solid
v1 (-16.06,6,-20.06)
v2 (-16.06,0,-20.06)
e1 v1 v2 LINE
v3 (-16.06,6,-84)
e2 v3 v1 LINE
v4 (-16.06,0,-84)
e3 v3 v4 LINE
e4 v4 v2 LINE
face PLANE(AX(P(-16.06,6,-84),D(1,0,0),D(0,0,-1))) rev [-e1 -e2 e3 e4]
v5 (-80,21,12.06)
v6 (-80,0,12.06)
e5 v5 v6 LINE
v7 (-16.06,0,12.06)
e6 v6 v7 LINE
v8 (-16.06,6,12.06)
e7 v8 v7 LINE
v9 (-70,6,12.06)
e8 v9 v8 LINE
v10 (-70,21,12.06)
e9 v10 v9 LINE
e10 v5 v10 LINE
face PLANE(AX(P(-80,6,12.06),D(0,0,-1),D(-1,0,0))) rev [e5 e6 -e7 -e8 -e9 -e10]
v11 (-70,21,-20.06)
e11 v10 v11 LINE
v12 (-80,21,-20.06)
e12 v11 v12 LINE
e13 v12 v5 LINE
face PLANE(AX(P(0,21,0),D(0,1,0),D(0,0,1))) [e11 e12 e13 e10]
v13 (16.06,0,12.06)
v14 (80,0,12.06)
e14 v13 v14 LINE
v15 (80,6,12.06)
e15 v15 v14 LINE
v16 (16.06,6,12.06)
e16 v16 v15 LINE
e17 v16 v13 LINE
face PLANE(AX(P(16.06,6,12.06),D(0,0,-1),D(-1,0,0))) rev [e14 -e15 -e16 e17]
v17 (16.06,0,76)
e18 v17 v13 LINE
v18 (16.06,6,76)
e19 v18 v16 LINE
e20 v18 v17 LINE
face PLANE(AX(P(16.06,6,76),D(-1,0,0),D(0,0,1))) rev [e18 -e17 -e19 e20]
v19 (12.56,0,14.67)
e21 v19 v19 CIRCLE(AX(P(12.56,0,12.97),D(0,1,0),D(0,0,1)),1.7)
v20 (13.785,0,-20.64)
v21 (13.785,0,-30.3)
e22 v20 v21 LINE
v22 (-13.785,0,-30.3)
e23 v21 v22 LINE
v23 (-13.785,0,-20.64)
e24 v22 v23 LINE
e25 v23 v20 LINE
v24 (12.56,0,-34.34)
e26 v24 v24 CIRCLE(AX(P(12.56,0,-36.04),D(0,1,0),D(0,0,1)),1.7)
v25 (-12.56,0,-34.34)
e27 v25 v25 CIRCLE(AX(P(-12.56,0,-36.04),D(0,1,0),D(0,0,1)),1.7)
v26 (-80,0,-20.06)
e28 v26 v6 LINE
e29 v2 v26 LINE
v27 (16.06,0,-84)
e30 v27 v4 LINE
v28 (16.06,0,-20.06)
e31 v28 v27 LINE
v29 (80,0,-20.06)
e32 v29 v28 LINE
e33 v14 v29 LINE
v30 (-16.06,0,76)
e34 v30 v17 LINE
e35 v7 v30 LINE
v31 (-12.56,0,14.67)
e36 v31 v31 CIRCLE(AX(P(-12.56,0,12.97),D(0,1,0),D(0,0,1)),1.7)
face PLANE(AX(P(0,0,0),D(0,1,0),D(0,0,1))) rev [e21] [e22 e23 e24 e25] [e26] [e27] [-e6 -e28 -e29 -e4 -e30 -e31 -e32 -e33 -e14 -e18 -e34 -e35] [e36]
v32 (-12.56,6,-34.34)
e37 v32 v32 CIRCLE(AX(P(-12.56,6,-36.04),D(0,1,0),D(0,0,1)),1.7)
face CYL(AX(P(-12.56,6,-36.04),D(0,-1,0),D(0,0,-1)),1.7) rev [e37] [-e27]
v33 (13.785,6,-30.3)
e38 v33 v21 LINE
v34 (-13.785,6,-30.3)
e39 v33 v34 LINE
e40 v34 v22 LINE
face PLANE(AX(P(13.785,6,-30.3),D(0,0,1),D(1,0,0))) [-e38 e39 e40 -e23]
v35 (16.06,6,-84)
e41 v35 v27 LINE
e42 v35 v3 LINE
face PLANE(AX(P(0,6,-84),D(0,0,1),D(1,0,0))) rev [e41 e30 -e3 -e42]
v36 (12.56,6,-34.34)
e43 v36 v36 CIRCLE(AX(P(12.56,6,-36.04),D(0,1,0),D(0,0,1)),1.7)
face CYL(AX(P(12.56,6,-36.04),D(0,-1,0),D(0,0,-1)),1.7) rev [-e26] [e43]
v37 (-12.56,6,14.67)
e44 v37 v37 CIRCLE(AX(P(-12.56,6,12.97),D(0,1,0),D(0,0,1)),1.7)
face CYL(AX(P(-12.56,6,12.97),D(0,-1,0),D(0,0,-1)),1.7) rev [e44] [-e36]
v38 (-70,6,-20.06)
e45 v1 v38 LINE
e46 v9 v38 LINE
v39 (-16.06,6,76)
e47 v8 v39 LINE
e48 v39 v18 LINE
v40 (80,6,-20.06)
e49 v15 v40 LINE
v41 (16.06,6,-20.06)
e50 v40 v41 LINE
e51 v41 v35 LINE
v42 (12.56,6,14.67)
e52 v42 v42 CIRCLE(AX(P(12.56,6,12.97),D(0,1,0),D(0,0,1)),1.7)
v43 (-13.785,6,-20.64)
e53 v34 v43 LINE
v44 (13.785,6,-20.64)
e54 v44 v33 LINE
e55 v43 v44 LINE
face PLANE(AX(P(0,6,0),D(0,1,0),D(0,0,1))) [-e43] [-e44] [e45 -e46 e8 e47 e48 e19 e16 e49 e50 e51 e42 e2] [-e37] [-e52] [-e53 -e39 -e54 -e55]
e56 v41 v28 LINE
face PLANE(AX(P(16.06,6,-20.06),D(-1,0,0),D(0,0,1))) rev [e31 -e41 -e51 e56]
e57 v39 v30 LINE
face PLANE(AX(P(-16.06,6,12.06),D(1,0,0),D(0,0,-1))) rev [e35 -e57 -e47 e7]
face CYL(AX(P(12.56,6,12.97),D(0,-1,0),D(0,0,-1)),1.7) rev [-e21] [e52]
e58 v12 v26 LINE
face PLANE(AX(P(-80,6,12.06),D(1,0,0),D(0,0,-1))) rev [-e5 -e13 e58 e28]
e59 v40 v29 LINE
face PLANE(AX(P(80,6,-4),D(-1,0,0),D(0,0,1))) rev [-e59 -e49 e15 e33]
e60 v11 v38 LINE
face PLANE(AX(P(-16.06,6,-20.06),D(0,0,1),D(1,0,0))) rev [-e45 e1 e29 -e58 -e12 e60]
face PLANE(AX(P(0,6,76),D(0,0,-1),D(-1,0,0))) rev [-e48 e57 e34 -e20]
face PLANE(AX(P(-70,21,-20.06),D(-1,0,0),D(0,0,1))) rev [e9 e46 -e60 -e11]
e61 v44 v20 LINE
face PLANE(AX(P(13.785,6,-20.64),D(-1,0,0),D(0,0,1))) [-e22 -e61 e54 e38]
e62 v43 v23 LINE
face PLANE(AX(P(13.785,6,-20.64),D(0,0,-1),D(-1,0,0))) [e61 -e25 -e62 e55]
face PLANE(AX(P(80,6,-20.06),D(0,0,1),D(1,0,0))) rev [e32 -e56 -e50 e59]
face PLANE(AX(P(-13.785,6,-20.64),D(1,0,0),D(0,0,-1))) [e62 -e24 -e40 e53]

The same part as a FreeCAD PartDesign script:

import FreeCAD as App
import Part
import Sketcher

V = App.Vector
Q = App.Units.Quantity

doc = App.newDocument("Part")
body = doc.addObject("PartDesign::Body", "Body")

sketch1 = body.newObject("Sketcher::SketchObject", "Sketch")
sketch1.AttachmentSupport = (doc.getObject("XZ_Plane"), [""])
sketch1.MapMode = "FlatFace"
sketch1.addGeometry([
    Part.LineSegment(V(-16.06, -84, 0), V(-16.06, -20.06, 0)),
    Part.LineSegment(V(-16.06, -20.06, 0), V(-80, -20.06, 0)),
    Part.LineSegment(V(-80, -20.06, 0), V(-80, 12.06, 0)),
    Part.LineSegment(V(-80, 12.06, 0), V(-16.06, 12.06, 0)),
    Part.LineSegment(V(-16.06, 12.06, 0), V(-16.06, 76, 0)),
    Part.LineSegment(V(-16.06, 76, 0), V(16.06, 76, 0)),
    Part.LineSegment(V(16.06, 76, 0), V(16.06, 12.06, 0)),
    Part.LineSegment(V(16.06, 12.06, 0), V(80, 12.06, 0)),
    Part.LineSegment(V(80, 12.06, 0), V(80, -20.06, 0)),
    Part.LineSegment(V(80, -20.06, 0), V(16.06, -20.06, 0)),
    Part.LineSegment(V(16.06, -20.06, 0), V(16.06, -84, 0)),
    Part.LineSegment(V(16.06, -84, 0), V(-16.06, -84, 0)),
    Part.Circle(V(-12.56, 12.97, 0), V(0, 0, 1), 1.7),
    Part.Circle(V(12.56, 12.97, 0), V(0, 0, 1), 1.7),
    Part.Circle(V(-12.56, -36.04, 0), V(0, 0, 1), 1.7),
    Part.LineSegment(V(13.785, -20.64, 0), V(-13.785, -20.64, 0)),
    Part.LineSegment(V(-13.785, -20.64, 0), V(-13.785, -30.3, 0)),
    Part.LineSegment(V(-13.785, -30.3, 0), V(13.785, -30.3, 0)),
    Part.LineSegment(V(13.785, -30.3, 0), V(13.785, -20.64, 0)),
    Part.Circle(V(12.56, -36.04, 0), V(0, 0, 1), 1.7),
], False)
sketch1.addConstraint([
    Sketcher.Constraint("Coincident", 0, 2, 1, 1),
    Sketcher.Constraint("Coincident", 1, 2, 2, 1),
    Sketcher.Constraint("Coincident", 2, 2, 3, 1),
    Sketcher.Constraint("Coincident", 3, 2, 4, 1),
    Sketcher.Constraint("Coincident", 4, 2, 5, 1),
    Sketcher.Constraint("Coincident", 5, 2, 6, 1),
    Sketcher.Constraint("Coincident", 6, 2, 7, 1),
    Sketcher.Constraint("Coincident", 7, 2, 8, 1),
    Sketcher.Constraint("Coincident", 8, 2, 9, 1),
    Sketcher.Constraint("Coincident", 9, 2, 10, 1),
    Sketcher.Constraint("Coincident", 10, 2, 11, 1),
    Sketcher.Constraint("Coincident", 11, 2, 0, 1),
    Sketcher.Constraint("Coincident", 15, 2, 16, 1),
    Sketcher.Constraint("Coincident", 16, 2, 17, 1),
    Sketcher.Constraint("Coincident", 17, 2, 18, 1),
    Sketcher.Constraint("Coincident", 18, 2, 15, 1),
    Sketcher.Constraint("Vertical", 0),
    Sketcher.Constraint("Horizontal", 1),
    Sketcher.Constraint("Vertical", 2),
    Sketcher.Constraint("Horizontal", 3),
    Sketcher.Constraint("Vertical", 4),
    Sketcher.Constraint("Horizontal", 5),
    Sketcher.Constraint("Vertical", 6),
    Sketcher.Constraint("Horizontal", 7),
    Sketcher.Constraint("Vertical", 8),
    Sketcher.Constraint("Horizontal", 9),
    Sketcher.Constraint("Vertical", 10),
    Sketcher.Constraint("Horizontal", 11),
    Sketcher.Constraint("Horizontal", 15),
    Sketcher.Constraint("Vertical", 16),
    Sketcher.Constraint("Horizontal", 17),
    Sketcher.Constraint("Vertical", 18),
    Sketcher.Constraint("Equal", 12, 13),
    Sketcher.Constraint("Equal", 13, 14),
    Sketcher.Constraint("Equal", 14, 19),
    Sketcher.Constraint("Symmetric", 12, 3, 13, 3, -2),
    Sketcher.Constraint("Symmetric", 14, 3, 19, 3, -2),
    Sketcher.Constraint("Symmetric", 3, 2, 6, 2, -2),
    Sketcher.Constraint("Symmetric", 1, 2, 8, 2, -2),
    Sketcher.Constraint("Vertical", 12, 3, 14, 3),
    Sketcher.Constraint("Vertical", 0, 2, 3, 2),
    Sketcher.Constraint("Vertical", 6, 2, 9, 2),
    Sketcher.Constraint("Equal", 9, 0),
    Sketcher.Constraint("Equal", 11, 2),
    Sketcher.Constraint("Equal", 0, 4),
    Sketcher.Constraint("Diameter", 12, Q("3.4 mm")),
    Sketcher.Constraint("DistanceX", 1, 2, -1, 1, Q("80 mm")),
    Sketcher.Constraint("DistanceY", -1, 1, 4, 2, Q("76 mm")),
    Sketcher.Constraint("DistanceX", 1, 2, 1, 1, Q("63.94 mm")),
    Sketcher.Constraint("DistanceX", 15, 2, 15, 1, Q("27.57 mm")),
    Sketcher.Constraint("DistanceY", 16, 2, 16, 1, Q("9.66 mm")),
    Sketcher.Constraint("DistanceY", 16, 2, -1, 1, Q("30.3 mm")),
    Sketcher.Constraint("DistanceX", 0, 2, 14, 3, Q("3.5 mm")),
    Sketcher.Constraint("DistanceY", 14, 3, 2, 2, Q("48.1 mm")),
    Sketcher.Constraint("DistanceY", -1, 1, 12, 3, Q("12.97 mm")),
    Sketcher.Constraint("DistanceX", 15, 2, -1, 1, Q("13.785 mm")),
])
pad1 = body.newObject("PartDesign::Pad", "Pad")
pad1.Profile = sketch1
pad1.Length = 6
pad1.Reversed = True

sketch2 = body.newObject("Sketcher::SketchObject", "Sketch001")
sketch2.AttachmentSupport = (doc.getObject("XZ_Plane"), [""])
sketch2.MapMode = "FlatFace"
sketch2.AttachmentOffset = App.Placement(V(0, 0, -6), App.Rotation())
sketch2.addGeometry([
    Part.LineSegment(V(-80, -20.06, 0), V(-80, 12.06, 0)),
    Part.LineSegment(V(-80, 12.06, 0), V(-70, 12.06, 0)),
    Part.LineSegment(V(-70, 12.06, 0), V(-70, -20.06, 0)),
    Part.LineSegment(V(-70, -20.06, 0), V(-80, -20.06, 0)),
], False)
sketch2.addConstraint([
    Sketcher.Constraint("Coincident", 0, 2, 1, 1),
    Sketcher.Constraint("Coincident", 1, 2, 2, 1),
    Sketcher.Constraint("Coincident", 2, 2, 3, 1),
    Sketcher.Constraint("Coincident", 3, 2, 0, 1),
    Sketcher.Constraint("Vertical", 0),
    Sketcher.Constraint("Horizontal", 1),
    Sketcher.Constraint("Vertical", 2),
    Sketcher.Constraint("Horizontal", 3),
    Sketcher.Constraint("DistanceX", 1, 1, 1, 2, Q("10 mm")),
    Sketcher.Constraint("DistanceX", 0, 2, -1, 1, Q("80 mm")),
    Sketcher.Constraint("DistanceY", 0, 1, 0, 2, Q("32.12 mm")),
    Sketcher.Constraint("DistanceY", -1, 1, 0, 2, Q("12.06 mm")),
])
pad2 = body.newObject("PartDesign::Pad", "Pad001")
pad2.Profile = sketch2
pad2.Length = 15
pad2.Reversed = True

doc.recompute()
